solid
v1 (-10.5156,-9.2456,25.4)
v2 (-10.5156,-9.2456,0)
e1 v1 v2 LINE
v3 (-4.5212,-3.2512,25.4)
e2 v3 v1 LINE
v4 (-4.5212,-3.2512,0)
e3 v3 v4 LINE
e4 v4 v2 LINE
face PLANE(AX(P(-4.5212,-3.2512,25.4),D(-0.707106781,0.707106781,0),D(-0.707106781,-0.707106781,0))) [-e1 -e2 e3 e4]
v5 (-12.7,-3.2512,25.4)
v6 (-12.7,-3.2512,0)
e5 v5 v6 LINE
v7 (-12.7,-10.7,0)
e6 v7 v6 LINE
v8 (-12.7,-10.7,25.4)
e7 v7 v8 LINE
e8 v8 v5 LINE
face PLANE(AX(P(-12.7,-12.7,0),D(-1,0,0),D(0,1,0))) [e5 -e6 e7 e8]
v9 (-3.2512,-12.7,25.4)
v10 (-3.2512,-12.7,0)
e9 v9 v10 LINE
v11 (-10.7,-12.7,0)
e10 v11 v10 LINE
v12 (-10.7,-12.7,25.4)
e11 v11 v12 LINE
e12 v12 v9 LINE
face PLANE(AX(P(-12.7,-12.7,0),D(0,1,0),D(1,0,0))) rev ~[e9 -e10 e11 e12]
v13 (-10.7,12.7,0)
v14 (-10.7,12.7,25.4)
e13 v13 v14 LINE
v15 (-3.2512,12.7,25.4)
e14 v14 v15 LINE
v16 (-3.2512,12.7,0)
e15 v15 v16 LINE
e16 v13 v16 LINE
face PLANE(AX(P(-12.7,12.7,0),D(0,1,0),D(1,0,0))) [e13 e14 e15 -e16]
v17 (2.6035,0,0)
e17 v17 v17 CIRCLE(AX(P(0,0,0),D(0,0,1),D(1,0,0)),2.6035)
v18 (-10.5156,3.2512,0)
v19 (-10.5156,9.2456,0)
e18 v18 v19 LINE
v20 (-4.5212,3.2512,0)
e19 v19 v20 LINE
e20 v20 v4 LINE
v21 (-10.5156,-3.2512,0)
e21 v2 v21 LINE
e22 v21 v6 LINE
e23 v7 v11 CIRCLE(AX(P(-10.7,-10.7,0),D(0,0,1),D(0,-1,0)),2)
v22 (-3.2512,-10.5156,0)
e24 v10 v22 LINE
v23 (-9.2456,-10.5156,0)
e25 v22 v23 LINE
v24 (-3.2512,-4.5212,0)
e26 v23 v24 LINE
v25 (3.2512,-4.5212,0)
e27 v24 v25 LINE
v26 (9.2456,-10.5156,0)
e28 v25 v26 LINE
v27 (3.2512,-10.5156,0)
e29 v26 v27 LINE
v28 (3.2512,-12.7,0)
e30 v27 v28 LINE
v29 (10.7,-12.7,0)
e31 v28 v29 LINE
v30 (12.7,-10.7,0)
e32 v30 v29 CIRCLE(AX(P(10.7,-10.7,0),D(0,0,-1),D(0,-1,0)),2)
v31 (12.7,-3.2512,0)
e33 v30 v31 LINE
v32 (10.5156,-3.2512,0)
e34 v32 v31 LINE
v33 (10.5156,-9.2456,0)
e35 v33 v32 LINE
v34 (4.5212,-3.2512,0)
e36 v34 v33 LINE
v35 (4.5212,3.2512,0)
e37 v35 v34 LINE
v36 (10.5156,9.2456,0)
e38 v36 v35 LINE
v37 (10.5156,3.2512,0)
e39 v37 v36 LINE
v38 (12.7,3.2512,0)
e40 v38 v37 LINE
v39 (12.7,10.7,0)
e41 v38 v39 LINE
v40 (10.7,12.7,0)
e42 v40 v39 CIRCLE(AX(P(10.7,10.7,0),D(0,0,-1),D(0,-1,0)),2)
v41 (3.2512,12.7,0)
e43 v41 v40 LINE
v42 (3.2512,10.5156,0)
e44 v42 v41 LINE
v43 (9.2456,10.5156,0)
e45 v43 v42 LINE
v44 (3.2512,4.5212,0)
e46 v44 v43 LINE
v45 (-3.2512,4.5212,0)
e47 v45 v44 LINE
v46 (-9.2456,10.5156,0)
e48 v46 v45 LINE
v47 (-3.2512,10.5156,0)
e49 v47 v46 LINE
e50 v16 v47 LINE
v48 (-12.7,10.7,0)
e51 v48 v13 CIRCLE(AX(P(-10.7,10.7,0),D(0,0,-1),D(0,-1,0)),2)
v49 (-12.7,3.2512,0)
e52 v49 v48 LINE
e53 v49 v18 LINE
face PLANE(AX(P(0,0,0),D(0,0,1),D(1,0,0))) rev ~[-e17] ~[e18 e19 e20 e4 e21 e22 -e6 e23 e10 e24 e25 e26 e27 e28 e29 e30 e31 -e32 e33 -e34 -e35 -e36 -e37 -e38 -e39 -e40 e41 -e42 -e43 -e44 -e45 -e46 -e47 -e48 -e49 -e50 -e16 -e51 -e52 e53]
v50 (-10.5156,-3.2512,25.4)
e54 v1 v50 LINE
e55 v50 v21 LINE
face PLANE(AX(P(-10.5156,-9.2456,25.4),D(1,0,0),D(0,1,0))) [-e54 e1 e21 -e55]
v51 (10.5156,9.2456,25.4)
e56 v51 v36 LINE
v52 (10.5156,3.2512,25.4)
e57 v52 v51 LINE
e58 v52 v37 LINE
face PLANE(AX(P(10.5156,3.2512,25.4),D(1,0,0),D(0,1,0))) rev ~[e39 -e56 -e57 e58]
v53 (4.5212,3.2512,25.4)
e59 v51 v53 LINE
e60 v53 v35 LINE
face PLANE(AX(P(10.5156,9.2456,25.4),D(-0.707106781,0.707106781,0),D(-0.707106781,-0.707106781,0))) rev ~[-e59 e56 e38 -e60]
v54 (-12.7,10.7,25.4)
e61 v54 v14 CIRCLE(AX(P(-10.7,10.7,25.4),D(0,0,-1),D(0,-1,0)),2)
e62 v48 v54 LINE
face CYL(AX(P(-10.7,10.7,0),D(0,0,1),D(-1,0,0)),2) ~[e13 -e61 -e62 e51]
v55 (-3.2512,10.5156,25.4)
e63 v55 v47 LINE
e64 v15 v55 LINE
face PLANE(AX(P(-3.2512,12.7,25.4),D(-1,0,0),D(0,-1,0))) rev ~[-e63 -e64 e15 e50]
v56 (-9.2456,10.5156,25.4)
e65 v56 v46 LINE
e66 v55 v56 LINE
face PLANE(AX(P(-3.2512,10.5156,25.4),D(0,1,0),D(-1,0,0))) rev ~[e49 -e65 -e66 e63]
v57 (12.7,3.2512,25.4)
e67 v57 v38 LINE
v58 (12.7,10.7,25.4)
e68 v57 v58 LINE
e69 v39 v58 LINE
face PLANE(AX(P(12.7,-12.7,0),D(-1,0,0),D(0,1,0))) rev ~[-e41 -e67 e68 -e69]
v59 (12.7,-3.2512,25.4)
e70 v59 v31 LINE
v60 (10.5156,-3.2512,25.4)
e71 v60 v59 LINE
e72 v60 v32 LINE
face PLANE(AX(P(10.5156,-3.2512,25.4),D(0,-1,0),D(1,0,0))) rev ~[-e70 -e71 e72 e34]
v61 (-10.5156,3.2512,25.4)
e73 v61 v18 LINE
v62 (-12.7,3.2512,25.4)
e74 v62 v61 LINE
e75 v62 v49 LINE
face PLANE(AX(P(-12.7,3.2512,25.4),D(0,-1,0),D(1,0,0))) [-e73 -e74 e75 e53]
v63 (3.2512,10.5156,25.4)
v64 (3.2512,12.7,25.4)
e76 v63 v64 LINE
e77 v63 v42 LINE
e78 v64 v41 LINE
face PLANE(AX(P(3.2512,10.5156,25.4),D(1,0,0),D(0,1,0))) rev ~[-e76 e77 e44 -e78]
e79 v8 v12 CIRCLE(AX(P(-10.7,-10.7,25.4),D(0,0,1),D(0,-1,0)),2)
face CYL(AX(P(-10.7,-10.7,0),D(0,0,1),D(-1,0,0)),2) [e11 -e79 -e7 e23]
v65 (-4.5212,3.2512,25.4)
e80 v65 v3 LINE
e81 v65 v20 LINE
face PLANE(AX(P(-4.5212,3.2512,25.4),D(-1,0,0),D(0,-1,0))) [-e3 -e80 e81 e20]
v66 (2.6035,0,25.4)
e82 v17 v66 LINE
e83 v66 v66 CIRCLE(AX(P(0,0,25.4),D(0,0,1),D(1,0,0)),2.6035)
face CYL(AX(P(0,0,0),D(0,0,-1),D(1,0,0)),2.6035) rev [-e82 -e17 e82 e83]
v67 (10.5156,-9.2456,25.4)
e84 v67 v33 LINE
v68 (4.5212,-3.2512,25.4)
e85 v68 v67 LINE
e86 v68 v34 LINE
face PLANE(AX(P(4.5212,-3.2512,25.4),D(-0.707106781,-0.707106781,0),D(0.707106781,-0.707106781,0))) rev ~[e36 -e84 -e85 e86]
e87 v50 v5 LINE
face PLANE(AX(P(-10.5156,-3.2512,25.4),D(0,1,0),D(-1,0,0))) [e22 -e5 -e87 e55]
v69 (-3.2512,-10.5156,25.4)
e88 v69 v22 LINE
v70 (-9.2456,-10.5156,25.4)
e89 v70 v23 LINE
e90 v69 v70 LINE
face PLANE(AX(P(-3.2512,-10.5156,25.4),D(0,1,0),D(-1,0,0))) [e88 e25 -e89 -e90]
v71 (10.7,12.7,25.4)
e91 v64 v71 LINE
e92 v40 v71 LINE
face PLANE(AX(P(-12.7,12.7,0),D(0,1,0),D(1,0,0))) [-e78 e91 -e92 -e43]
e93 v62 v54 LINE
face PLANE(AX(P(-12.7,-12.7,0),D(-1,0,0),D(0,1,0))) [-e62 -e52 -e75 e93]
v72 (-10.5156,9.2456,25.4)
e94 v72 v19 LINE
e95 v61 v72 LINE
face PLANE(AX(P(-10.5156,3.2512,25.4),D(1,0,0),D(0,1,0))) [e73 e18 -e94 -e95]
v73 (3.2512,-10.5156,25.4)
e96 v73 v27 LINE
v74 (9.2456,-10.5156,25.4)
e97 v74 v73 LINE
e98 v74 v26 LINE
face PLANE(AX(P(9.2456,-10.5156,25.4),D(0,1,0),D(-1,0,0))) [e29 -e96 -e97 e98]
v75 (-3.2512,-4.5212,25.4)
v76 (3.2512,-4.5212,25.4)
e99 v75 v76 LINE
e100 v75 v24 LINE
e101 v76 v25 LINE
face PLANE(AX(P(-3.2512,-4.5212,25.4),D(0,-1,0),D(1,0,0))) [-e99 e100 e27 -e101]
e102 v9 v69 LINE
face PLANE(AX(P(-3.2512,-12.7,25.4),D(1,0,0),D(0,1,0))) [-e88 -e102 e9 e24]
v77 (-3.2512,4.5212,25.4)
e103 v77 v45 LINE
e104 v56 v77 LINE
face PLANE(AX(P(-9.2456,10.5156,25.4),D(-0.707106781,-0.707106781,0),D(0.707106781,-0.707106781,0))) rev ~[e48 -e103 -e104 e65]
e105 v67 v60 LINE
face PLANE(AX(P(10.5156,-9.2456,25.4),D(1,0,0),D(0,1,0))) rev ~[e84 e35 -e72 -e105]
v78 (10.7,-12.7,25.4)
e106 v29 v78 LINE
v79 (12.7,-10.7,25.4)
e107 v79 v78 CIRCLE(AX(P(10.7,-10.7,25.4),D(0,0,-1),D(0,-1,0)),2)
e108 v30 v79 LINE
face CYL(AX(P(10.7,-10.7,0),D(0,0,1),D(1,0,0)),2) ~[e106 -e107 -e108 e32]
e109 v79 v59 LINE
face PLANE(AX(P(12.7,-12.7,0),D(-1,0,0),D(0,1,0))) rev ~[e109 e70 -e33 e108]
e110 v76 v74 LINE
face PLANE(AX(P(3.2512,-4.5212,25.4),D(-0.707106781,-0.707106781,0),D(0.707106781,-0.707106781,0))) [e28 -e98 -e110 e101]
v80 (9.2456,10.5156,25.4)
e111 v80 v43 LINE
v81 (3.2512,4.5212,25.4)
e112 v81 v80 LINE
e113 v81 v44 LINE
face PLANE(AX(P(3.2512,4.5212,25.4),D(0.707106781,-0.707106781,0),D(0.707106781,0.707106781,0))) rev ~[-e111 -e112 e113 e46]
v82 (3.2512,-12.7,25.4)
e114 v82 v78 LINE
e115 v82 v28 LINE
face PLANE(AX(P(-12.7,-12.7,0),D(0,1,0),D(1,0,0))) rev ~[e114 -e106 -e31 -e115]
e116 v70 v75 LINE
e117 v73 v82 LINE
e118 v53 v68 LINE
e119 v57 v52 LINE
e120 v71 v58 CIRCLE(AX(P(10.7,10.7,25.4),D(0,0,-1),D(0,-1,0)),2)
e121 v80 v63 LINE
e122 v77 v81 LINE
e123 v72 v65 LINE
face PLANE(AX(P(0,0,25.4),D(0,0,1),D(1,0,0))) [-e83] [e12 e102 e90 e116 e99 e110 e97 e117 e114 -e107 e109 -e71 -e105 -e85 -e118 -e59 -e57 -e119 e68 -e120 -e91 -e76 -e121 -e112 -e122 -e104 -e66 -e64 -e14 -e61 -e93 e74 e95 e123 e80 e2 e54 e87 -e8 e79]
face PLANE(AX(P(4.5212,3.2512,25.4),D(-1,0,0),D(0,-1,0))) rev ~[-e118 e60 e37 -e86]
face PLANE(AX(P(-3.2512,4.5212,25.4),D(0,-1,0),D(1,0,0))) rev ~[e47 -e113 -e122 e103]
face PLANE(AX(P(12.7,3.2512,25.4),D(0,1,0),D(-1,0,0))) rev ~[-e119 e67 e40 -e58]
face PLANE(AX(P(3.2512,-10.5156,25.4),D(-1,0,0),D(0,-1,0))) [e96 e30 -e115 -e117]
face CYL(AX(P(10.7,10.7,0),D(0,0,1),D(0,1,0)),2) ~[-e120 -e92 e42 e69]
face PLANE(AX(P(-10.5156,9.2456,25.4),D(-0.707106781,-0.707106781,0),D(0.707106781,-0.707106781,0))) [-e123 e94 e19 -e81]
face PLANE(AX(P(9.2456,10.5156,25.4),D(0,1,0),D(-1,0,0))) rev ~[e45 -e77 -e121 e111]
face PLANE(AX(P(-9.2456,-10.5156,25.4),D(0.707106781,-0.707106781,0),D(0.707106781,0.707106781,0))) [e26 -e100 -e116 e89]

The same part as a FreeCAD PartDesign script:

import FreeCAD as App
import Part
import Sketcher

V = App.Vector
Q = App.Units.Quantity


def edges_at(feature, points):
    """Names of the edges that pass closest to the given points."""
    edges = feature.Shape.Edges
    near = lambda p: min(range(len(edges)), key=lambda i: edges[i].distToShape(Part.Vertex(*p))[0])
    return sorted({f"Edge{near(p) + 1}" for p in points})

doc = App.newDocument("Part")
body = doc.addObject("PartDesign::Body", "Body")

# Sketch on XY plane
sketch1 = doc.addObject("Sketcher::SketchObject", "Sketch")
body.addObject(sketch1)
sketch1.AttachmentSupport = (doc.XY_Plane, [""])
sketch1.MapMode = "FlatFace"
sketch1.addGeometry([
    Part.LineSegment(V(-12.7, 12.7, 0), V(-12.7, -12.7, 0)),  # 0
    Part.LineSegment(V(-12.7, -12.7, 0), V(12.7, -12.7, 0)),  # 1
    Part.LineSegment(V(12.7, -12.7, 0), V(12.7, 12.7, 0)),  # 2
    Part.LineSegment(V(12.7, 12.7, 0), V(-12.7, 12.7, 0)),  # 3
    Part.Circle(V(0, 0, 0), V(0, 0, 1), 2.6),  # 4
], False)
sketch1.addConstraint([
    Sketcher.Constraint("Coincident", 0, 2, 1, 1),
    Sketcher.Constraint("Coincident", 1, 2, 2, 1),
    Sketcher.Constraint("Coincident", 2, 2, 3, 1),
    Sketcher.Constraint("Coincident", 3, 2, 0, 1),
    Sketcher.Constraint("Vertical", 0),
    Sketcher.Constraint("Horizontal", 1),
    Sketcher.Constraint("Vertical", 2),
    Sketcher.Constraint("Horizontal", 3),
    Sketcher.Constraint("Coincident", 4, 3, -1, 1),
    Sketcher.Constraint("Symmetric", 0, 2, 2, 2, -1, 1),
    Sketcher.Constraint("Equal", 3, 0),
    Sketcher.Constraint("DistanceX", 1, 1, 1, 2, Q("1 in")),
    Sketcher.Constraint("Diameter", 4, Q("0.205 in")),
])
pad1 = doc.addObject("PartDesign::Pad", "Pad")
body.addObject(pad1)
pad1.Profile = sketch1
pad1.Length = Q("1 in")

# Sketch on XY plane
sketch2 = doc.addObject("Sketcher::SketchObject", "Sketch001")
body.addObject(sketch2)
sketch2.AttachmentSupport = (doc.XY_Plane, [""])
sketch2.MapMode = "FlatFace"
sketch2.AttachmentOffset = App.Placement(V(0, 0, 1 * 25.4), App.Rotation())
sketch2.addGeometry([
    Part.LineSegment(V(-3.3, 4.5, 0), V(3.3, 4.5, 0)),  # 0
    Part.LineSegment(V(3.3, 4.5, 0), V(9.2, 10.5, 0)),  # 1
    Part.LineSegment(V(9.2, 10.5, 0), V(3.3, 10.5, 0)),  # 2
    Part.LineSegment(V(3.3, 10.5, 0), V(3.3, 12.7, 0)),  # 3
    Part.LineSegment(V(3.3, 12.7, 0), V(-3.3, 12.7, 0)),  # 4
    Part.LineSegment(V(-3.3, 12.7, 0), V(-3.3, 10.5, 0)),  # 5
    Part.LineSegment(V(-3.3, 10.5, 0), V(-9.2, 10.5, 0)),  # 6
    Part.LineSegment(V(-9.2, 10.5, 0), V(-3.3, 4.5, 0)),  # 7
    Part.LineSegment(V(4.5, 3.3, 0), V(4.5, -3.3, 0)),  # 8
    Part.LineSegment(V(4.5, -3.3, 0), V(10.5, -9.2, 0)),  # 9
    Part.LineSegment(V(10.5, -9.2, 0), V(10.5, -3.3, 0)),  # 10
    Part.LineSegment(V(10.5, -3.3, 0), V(12.7, -3.3, 0)),  # 11
    Part.LineSegment(V(12.7, -3.3, 0), V(12.7, 3.3, 0)),  # 12
    Part.LineSegment(V(12.7, 3.3, 0), V(10.5, 3.3, 0)),  # 13
    Part.LineSegment(V(10.5, 3.3, 0), V(10.5, 9.2, 0)),  # 14
    Part.LineSegment(V(10.5, 9.2, 0), V(4.5, 3.3, 0)),  # 15
    Part.LineSegment(V(3.3, -4.5, 0), V(-3.3, -4.5, 0)),  # 16
    Part.LineSegment(V(-3.3, -4.5, 0), V(-9.2, -10.5, 0)),  # 17
    Part.LineSegment(V(-9.2, -10.5, 0), V(-3.3, -10.5, 0)),  # 18
    Part.LineSegment(V(-3.3, -10.5, 0), V(-3.3, -12.7, 0)),  # 19
    Part.LineSegment(V(-3.3, -12.7, 0), V(3.3, -12.7, 0)),  # 20
    Part.LineSegment(V(3.3, -12.7, 0), V(3.3, -10.5, 0)),  # 21
    Part.LineSegment(V(3.3, -10.5, 0), V(9.2, -10.5, 0)),  # 22
    Part.LineSegment(V(9.2, -10.5, 0), V(3.3, -4.5, 0)),  # 23
    Part.LineSegment(V(-4.5, -3.3, 0), V(-4.5, 3.3, 0)),  # 24
    Part.LineSegment(V(-4.5, 3.3, 0), V(-10.5, 9.2, 0)),  # 25
    Part.LineSegment(V(-10.5, 9.2, 0), V(-10.5, 3.3, 0)),  # 26
    Part.LineSegment(V(-10.5, 3.3, 0), V(-12.7, 3.3, 0)),  # 27
    Part.LineSegment(V(-12.7, 3.3, 0), V(-12.7, -3.3, 0)),  # 28
    Part.LineSegment(V(-12.7, -3.3, 0), V(-10.5, -3.3, 0)),  # 29
    Part.LineSegment(V(-10.5, -3.3, 0), V(-10.5, -9.2, 0)),  # 30
    Part.LineSegment(V(-10.5, -9.2, 0), V(-4.5, -3.3, 0)),  # 31
], False)
sketch2.addConstraint([
    Sketcher.Constraint("Coincident", 0, 2, 1, 1),
    Sketcher.Constraint("Coincident", 1, 2, 2, 1),
    Sketcher.Constraint("Coincident", 2, 2, 3, 1),
    Sketcher.Constraint("Coincident", 3, 2, 4, 1),
    Sketcher.Constraint("Coincident", 4, 2, 5, 1),
    Sketcher.Constraint("Coincident", 5, 2, 6, 1),
    Sketcher.Constraint("Coincident", 6, 2, 7, 1),
    Sketcher.Constraint("Coincident", 7, 2, 0, 1),
    Sketcher.Constraint("Coincident", 8, 2, 9, 1),
    Sketcher.Constraint("Coincident", 9, 2, 10, 1),
    Sketcher.Constraint("Coincident", 10, 2, 11, 1),
    Sketcher.Constraint("Coincident", 11, 2, 12, 1),
    Sketcher.Constraint("Coincident", 12, 2, 13, 1),
    Sketcher.Constraint("Coincident", 13, 2, 14, 1),
    Sketcher.Constraint("Coincident", 14, 2, 15, 1),
    Sketcher.Constraint("Coincident", 15, 2, 8, 1),
    Sketcher.Constraint("Coincident", 16, 2, 17, 1),
    Sketcher.Constraint("Coincident", 17, 2, 18, 1),
    Sketcher.Constraint("Coincident", 18, 2, 19, 1),
    Sketcher.Constraint("Coincident", 19, 2, 20, 1),
    Sketcher.Constraint("Coincident", 20, 2, 21, 1),
    Sketcher.Constraint("Coincident", 21, 2, 22, 1),
    Sketcher.Constraint("Coincident", 22, 2, 23, 1),
    Sketcher.Constraint("Coincident", 23, 2, 16, 1),
    Sketcher.Constraint("Coincident", 24, 2, 25, 1),
    Sketcher.Constraint("Coincident", 25, 2, 26, 1),
    Sketcher.Constraint("Coincident", 26, 2, 27, 1),
    Sketcher.Constraint("Coincident", 27, 2, 28, 1),
    Sketcher.Constraint("Coincident", 28, 2, 29, 1),
    Sketcher.Constraint("Coincident", 29, 2, 30, 1),
    Sketcher.Constraint("Coincident", 30, 2, 31, 1),
    Sketcher.Constraint("Coincident", 31, 2, 24, 1),
    Sketcher.Constraint("Horizontal", 0),
    Sketcher.Constraint("Horizontal", 2),
    Sketcher.Constraint("Vertical", 3),
    Sketcher.Constraint("Horizontal", 4),
    Sketcher.Constraint("Vertical", 5),
    Sketcher.Constraint("Horizontal", 6),
    Sketcher.Constraint("Vertical", 8),
    Sketcher.Constraint("Vertical", 10),
    Sketcher.Constraint("Horizontal", 11),
    Sketcher.Constraint("Vertical", 12),
    Sketcher.Constraint("Horizontal", 13),
    Sketcher.Constraint("Vertical", 14),
    Sketcher.Constraint("Horizontal", 16),
    Sketcher.Constraint("Horizontal", 18),
    Sketcher.Constraint("Vertical", 19),
    Sketcher.Constraint("Horizontal", 20),
    Sketcher.Constraint("Vertical", 21),
    Sketcher.Constraint("Horizontal", 22),
    Sketcher.Constraint("Vertical", 24),
    Sketcher.Constraint("Vertical", 26),
    Sketcher.Constraint("Horizontal", 27),
    Sketcher.Constraint("Vertical", 28),
    Sketcher.Constraint("Horizontal", 29),
    Sketcher.Constraint("Vertical", 30),
    Sketcher.Constraint("Symmetric", 0, 2, 16, 2, -1, 1),
    Sketcher.Constraint("Symmetric", 1, 2, 17, 2, -1, 1),
    Sketcher.Constraint("Symmetric", 3, 2, 19, 2, -1, 1),
    Sketcher.Constraint("Symmetric", 5, 2, 21, 2, -1, 1),
    Sketcher.Constraint("Symmetric", 8, 2, 24, 2, -1, 1),
    Sketcher.Constraint("Symmetric", 9, 2, 25, 2, -1, 1),
    Sketcher.Constraint("Symmetric", 11, 2, 27, 2, -1, 1),
    Sketcher.Constraint("Symmetric", 13, 2, 29, 2, -1, 1),
    Sketcher.Constraint("Symmetric", 2, 2, 5, 2, -2),
    Sketcher.Constraint("Symmetric", 14, 2, 25, 2, -2),
    Sketcher.Constraint("Perpendicular", 1, 7),
    Sketcher.Constraint("Parallel", 7, 9),
    Sketcher.Constraint("Perpendicular", 9, 15),
    Sketcher.Constraint("Perpendicular", 17, 23),
    Sketcher.Constraint("Perpendicular", 25, 31),
    Sketcher.Constraint("Horizontal", 8, 2, 10, 2),
    Sketcher.Constraint("Horizontal", 13, 2, 15, 2),
    Sketcher.Constraint("Horizontal", 15, 2, 24, 2),
    Sketcher.Constraint("Horizontal", 9, 2, 30, 2),
    Sketcher.Constraint("Vertical", 0, 2, 2, 2),
    Sketcher.Constraint("Vertical", 5, 2, 7, 2),
    Sketcher.Constraint("Vertical", 1, 2, 22, 2),
    Sketcher.Constraint("Equal", 29, 3),
    Sketcher.Constraint("Equal", 20, 8),
    Sketcher.Constraint("Equal", 22, 10),
    Sketcher.Constraint("DistanceY", -1, 1, 3, 2, Q("0.5 in")),
    Sketcher.Constraint("DistanceX", -1, 1, 11, 2, Q("0.5 in")),
    Sketcher.Constraint("DistanceX", 0, 1, 0, 2, Q("0.256 in")),
    Sketcher.Constraint("DistanceX", 2, 2, 2, 1, Q("0.236 in")),
    Sketcher.Constraint("DistanceX", 11, 1, 11, 2, Q("0.086 in")),
])
pocket1 = doc.addObject("PartDesign::Pocket", "Pocket")
body.addObject(pocket1)
pocket1.Profile = sketch2
pocket1.Type = "ThroughAll"
doc.recompute()

fillet = doc.addObject("PartDesign::Fillet", "Fillet")
body.addObject(fillet)
fillet.Base = (pocket1, edges_at(pocket1, [
    (12.7, -12.7, 12.7),
    (12.7, 12.7, 12.7),
    (-12.7, 12.7, 12.7),
    (-12.7, -12.7, 12.7),
]))
fillet.Radius = 2

doc.recompute()
